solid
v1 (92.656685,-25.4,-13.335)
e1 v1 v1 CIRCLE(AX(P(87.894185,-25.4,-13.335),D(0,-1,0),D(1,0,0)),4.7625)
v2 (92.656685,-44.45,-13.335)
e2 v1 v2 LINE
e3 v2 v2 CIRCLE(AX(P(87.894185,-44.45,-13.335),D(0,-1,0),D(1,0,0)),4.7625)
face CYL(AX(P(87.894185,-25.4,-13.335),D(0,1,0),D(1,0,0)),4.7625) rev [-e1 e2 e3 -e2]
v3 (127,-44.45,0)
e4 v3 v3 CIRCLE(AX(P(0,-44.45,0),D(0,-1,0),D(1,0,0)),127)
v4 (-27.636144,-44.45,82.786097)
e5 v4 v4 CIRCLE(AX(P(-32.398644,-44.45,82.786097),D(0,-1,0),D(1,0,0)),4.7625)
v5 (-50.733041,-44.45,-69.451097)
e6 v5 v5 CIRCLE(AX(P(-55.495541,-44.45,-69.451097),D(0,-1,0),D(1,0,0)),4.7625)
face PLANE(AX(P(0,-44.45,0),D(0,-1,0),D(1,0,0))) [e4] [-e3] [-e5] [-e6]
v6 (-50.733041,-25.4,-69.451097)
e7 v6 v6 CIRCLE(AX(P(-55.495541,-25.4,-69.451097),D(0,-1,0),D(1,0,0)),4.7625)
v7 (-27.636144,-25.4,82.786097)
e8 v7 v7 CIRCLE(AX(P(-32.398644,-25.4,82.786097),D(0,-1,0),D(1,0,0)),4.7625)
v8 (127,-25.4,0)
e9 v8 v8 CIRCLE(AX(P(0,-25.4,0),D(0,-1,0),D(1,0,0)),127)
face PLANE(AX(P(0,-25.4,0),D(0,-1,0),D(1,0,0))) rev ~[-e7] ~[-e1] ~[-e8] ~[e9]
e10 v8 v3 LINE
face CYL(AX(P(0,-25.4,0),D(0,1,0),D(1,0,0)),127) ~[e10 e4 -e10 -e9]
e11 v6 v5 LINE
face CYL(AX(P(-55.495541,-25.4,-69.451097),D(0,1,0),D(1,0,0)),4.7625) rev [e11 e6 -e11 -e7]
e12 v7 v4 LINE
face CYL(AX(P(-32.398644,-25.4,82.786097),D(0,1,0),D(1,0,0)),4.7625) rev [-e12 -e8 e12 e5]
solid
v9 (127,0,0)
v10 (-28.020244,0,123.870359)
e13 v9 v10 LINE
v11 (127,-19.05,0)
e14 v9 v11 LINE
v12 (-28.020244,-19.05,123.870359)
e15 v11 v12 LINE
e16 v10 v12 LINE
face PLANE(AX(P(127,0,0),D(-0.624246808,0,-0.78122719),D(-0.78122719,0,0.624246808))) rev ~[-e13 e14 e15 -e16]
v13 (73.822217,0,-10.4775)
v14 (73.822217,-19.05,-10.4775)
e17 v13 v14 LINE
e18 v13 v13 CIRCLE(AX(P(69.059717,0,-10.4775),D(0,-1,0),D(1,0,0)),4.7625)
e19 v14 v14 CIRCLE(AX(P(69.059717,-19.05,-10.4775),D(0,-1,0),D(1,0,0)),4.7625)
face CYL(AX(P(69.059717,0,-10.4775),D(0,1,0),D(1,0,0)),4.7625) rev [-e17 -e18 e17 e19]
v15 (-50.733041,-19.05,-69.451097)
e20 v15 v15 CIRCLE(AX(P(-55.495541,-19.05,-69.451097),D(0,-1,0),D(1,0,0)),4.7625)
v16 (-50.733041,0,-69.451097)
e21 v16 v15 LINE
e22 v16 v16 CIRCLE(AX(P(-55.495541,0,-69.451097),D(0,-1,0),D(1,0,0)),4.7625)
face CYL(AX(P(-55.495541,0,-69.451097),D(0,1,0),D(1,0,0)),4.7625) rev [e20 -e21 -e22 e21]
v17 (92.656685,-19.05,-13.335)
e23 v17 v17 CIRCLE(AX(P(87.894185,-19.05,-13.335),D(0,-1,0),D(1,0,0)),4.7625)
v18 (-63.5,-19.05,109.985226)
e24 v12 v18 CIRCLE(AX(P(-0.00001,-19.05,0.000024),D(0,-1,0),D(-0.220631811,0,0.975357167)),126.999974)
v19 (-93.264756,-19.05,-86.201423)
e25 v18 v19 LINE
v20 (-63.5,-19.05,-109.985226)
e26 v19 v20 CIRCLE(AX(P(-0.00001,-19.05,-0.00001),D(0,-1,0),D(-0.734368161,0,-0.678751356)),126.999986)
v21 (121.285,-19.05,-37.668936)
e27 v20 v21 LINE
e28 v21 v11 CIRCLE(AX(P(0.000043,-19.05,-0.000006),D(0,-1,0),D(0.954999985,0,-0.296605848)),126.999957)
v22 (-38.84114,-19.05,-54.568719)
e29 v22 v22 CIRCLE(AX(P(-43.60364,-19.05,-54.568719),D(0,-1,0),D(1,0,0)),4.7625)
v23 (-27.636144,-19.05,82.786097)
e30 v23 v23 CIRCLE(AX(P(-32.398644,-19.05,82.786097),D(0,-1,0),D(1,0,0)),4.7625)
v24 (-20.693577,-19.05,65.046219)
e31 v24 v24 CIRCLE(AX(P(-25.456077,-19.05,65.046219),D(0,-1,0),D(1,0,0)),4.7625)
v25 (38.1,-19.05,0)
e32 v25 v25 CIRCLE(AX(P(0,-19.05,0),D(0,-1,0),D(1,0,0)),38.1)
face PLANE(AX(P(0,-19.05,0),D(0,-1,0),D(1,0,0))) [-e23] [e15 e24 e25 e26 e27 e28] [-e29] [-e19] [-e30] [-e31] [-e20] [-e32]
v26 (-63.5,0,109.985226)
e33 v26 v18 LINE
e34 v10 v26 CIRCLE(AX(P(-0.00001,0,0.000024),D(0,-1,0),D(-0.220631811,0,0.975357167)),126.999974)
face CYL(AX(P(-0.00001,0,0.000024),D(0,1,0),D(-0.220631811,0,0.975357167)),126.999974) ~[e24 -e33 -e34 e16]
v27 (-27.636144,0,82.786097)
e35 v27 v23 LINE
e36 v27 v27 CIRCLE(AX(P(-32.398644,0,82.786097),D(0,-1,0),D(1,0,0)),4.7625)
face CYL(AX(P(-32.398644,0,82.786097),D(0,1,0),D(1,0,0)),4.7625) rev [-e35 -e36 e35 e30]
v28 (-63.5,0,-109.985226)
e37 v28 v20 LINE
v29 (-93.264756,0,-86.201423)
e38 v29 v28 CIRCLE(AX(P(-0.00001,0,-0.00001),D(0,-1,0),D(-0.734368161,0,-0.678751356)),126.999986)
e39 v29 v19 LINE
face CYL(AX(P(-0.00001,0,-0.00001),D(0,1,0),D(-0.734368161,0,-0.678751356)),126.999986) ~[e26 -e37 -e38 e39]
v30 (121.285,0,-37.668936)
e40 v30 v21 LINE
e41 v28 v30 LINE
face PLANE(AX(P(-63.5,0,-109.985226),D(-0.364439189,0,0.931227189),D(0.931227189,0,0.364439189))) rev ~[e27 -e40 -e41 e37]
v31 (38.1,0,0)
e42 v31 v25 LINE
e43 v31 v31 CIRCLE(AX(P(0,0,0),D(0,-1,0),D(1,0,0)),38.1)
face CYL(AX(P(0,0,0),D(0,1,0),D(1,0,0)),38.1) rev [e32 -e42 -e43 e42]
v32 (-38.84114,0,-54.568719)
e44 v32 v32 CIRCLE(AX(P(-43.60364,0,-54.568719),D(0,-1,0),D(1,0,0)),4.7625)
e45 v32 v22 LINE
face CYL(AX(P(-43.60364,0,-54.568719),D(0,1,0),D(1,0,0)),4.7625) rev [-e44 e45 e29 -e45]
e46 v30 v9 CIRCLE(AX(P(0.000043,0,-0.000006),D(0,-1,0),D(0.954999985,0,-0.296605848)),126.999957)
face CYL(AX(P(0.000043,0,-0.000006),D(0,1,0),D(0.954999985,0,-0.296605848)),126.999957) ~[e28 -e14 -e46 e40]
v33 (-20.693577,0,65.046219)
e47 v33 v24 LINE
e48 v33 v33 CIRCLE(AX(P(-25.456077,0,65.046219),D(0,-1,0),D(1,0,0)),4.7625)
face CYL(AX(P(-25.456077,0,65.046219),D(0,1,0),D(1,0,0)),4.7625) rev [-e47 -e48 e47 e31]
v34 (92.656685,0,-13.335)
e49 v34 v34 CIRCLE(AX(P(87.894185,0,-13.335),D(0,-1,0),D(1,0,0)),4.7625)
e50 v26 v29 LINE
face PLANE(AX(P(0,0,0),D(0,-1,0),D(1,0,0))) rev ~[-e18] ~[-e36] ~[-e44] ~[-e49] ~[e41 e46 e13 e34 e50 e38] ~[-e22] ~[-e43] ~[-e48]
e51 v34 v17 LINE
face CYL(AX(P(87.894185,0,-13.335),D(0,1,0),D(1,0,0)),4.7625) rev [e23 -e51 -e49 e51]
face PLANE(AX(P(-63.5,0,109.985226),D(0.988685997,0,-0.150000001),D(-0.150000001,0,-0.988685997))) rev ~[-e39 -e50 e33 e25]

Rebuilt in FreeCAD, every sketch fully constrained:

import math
import FreeCAD as App
import Part
import Sketcher
Q = App.Units.Quantity

doc = App.newDocument("Part")
body = doc.addObject("PartDesign::Body", "Body")

# Sketch on XZ plane
sketch1 = body.newObject("Sketcher::SketchObject", "Sketch")
sketch1.AttachmentSupport = (doc.getObject("XZ_Plane"), [""])
sketch1.MapMode = "FlatFace"
sketch1.addGeometry([
    Part.LineSegment(App.Vector(-63.5, 110, 0), App.Vector(-93.3, -86.2, 0)),  # 0
    Part.ArcOfCircle(Part.Circle(App.Vector(0, 0, 0), App.Vector(0, 0, 1), 127), math.radians(-137.25), math.radians(-120)),  # 1
    Part.LineSegment(App.Vector(-63.5, -110, 0), App.Vector(121.3, -37.7, 0)),  # 2
    Part.ArcOfCircle(Part.Circle(App.Vector(0, 0, 0), App.Vector(0, 0, 1), 127), math.radians(-17.25), math.radians(0)),  # 3
    Part.LineSegment(App.Vector(127, 0, 0), App.Vector(-28, 123.9, 0)),  # 4
    Part.ArcOfCircle(Part.Circle(App.Vector(0, 0, 0), App.Vector(0, 0, 1), 127), math.radians(102.75), math.radians(120)),  # 5
    Part.Circle(App.Vector(-55.5, -69.5, 0), App.Vector(0, 0, 1), 4.8),  # 6
    Part.Circle(App.Vector(-43.6, -54.6, 0), App.Vector(0, 0, 1), 4.8),  # 7
    Part.Circle(App.Vector(0, 0, 0), App.Vector(0, 0, 1), 38.1),  # 8
    Part.Circle(App.Vector(69.1, -10.5, 0), App.Vector(0, 0, 1), 4.8),  # 9
    Part.Circle(App.Vector(87.9, -13.3, 0), App.Vector(0, 0, 1), 4.8),  # 10
    Part.Circle(App.Vector(-25.5, 65, 0), App.Vector(0, 0, 1), 4.8),  # 11
    Part.Circle(App.Vector(-32.4, 82.8, 0), App.Vector(0, 0, 1), 4.8),  # 12
], False)
sketch1.addConstraint([
    Sketcher.Constraint("Coincident", 0, 2, 1, 1),
    Sketcher.Constraint("Coincident", 1, 2, 2, 1),
    Sketcher.Constraint("Coincident", 2, 2, 3, 1),
    Sketcher.Constraint("Coincident", 3, 2, 4, 1),
    Sketcher.Constraint("Coincident", 4, 2, 5, 1),
    Sketcher.Constraint("Coincident", 5, 2, 0, 1),
    Sketcher.Constraint("Coincident", 8, 3, -1, 1),
    Sketcher.Constraint("Equal", 6, 7),
    Sketcher.Constraint("Equal", 7, 9),
    Sketcher.Constraint("Equal", 9, 10),
    Sketcher.Constraint("Equal", 10, 11),
    Sketcher.Constraint("Equal", 11, 12),
    Sketcher.Constraint("Symmetric", 1, 2, 5, 2, -1),
    Sketcher.Constraint("PointOnObject", 3, 2, -1),
    Sketcher.Constraint("Vertical", 1, 3, 5, 3),
    Sketcher.Constraint("Equal", 0, 2),
    Sketcher.Constraint("Equal", 2, 4),
    Sketcher.Constraint("Diameter", 8, Q("3 in")),
    Sketcher.Constraint("Diameter", 6, Q("0.375 in")),
    Sketcher.Constraint("DistanceX", -1, 1, 3, 2, Q("5 in")),
    Sketcher.Constraint("DistanceX", 1, 2, -1, 1, Q("2.5 in")),
    Sketcher.Constraint("DistanceY", 10, 3, -1, 1, Q("0.525 in")),
    Sketcher.Constraint("DistanceX", -1, 1, 2, 2, Q("4.775 in")),
    Sketcher.Constraint("DistanceY", 9, 3, -1, 1, Q("0.4125 in")),
    Sketcher.Constraint("Radius", 1, 126.999986),
    Sketcher.Constraint("Radius", 3, 126.999957),
    Sketcher.Constraint("Radius", 5, 126.999974),
    Sketcher.Constraint("DistanceX", 6, 3, 7, 3, 11.891901),
    Sketcher.Constraint("DistanceX", 12, 3, 4, 2, 4.3784),
    Sketcher.Constraint("DistanceX", 6, 3, -1, 1, 55.495541),
    Sketcher.Constraint("DistanceY", 7, 3, -1, 1, 54.568719),
    Sketcher.Constraint("DistanceY", -1, 1, 11, 3, 65.046219),
    Sketcher.Constraint("DistanceY", -1, 1, 4, 2, 123.870359),
    Sketcher.Constraint("DistanceX", 6, 3, 1, 3, 55.495531),
    Sketcher.Constraint("DistanceY", 6, 3, 5, 3, 69.451121),
    Sketcher.Constraint("DistanceY", 6, 3, 3, 3, 69.451091),
    Sketcher.Constraint("DistanceX", 11, 3, 3, 3, 25.45612),
    Sketcher.Constraint("DistanceY", 11, 3, 12, 3, 17.739878),
    Sketcher.Constraint("DistanceX", -1, 1, 9, 3, 69.059717),
    Sketcher.Constraint("DistanceX", -1, 1, 10, 3, 87.894185),
])
pad1 = body.newObject("PartDesign::Pad", "Pad")
pad1.Profile = sketch1
pad1.Length = Q("0.75 in")
body2 = doc.addObject("PartDesign::Body", "Body001")

# Sketch on XZ plane
sketch2 = body2.newObject("Sketcher::SketchObject", "Sketch001")
sketch2.AttachmentSupport = (doc.getObject("XZ_Plane001"), [""])
sketch2.MapMode = "FlatFace"
sketch2.AttachmentOffset = App.Placement(App.Vector(0, 0, 1 * 25.4), App.Rotation())
sketch2.addGeometry([
    Part.Circle(App.Vector(0, 0, 0), App.Vector(0, 0, 1), 127),
    Part.Circle(App.Vector(-55.5, -69.5, 0), App.Vector(0, 0, 1), 4.8),
    Part.Circle(App.Vector(87.9, -13.3, 0), App.Vector(0, 0, 1), 4.8),
    Part.Circle(App.Vector(-32.4, 82.8, 0), App.Vector(0, 0, 1), 4.8),
], False)
sketch2.addConstraint([
    Sketcher.Constraint("Coincident", 0, 3, -1, 1),
    Sketcher.Constraint("Equal", 1, 2),
    Sketcher.Constraint("Equal", 2, 3),
    Sketcher.Constraint("Diameter", 0, Q("10 in")),
    Sketcher.Constraint("Diameter", 1, Q("0.375 in")),
    Sketcher.Constraint("DistanceY", 2, 3, -1, 1, Q("0.525 in")),
    Sketcher.Constraint("DistanceX", 1, 3, -1, 1, 55.495541),
    Sketcher.Constraint("DistanceX", 3, 3, 2, 3, 120.292829),
    Sketcher.Constraint("DistanceY", 1, 3, -1, 1, 69.451097),
    Sketcher.Constraint("DistanceX", -1, 1, 2, 3, 87.894185),
    Sketcher.Constraint("DistanceY", -1, 1, 3, 3, 82.786097),
])
pad2 = body2.newObject("PartDesign::Pad", "Pad001")
pad2.Profile = sketch2
pad2.Length = Q("0.75 in")

doc.recompute()
